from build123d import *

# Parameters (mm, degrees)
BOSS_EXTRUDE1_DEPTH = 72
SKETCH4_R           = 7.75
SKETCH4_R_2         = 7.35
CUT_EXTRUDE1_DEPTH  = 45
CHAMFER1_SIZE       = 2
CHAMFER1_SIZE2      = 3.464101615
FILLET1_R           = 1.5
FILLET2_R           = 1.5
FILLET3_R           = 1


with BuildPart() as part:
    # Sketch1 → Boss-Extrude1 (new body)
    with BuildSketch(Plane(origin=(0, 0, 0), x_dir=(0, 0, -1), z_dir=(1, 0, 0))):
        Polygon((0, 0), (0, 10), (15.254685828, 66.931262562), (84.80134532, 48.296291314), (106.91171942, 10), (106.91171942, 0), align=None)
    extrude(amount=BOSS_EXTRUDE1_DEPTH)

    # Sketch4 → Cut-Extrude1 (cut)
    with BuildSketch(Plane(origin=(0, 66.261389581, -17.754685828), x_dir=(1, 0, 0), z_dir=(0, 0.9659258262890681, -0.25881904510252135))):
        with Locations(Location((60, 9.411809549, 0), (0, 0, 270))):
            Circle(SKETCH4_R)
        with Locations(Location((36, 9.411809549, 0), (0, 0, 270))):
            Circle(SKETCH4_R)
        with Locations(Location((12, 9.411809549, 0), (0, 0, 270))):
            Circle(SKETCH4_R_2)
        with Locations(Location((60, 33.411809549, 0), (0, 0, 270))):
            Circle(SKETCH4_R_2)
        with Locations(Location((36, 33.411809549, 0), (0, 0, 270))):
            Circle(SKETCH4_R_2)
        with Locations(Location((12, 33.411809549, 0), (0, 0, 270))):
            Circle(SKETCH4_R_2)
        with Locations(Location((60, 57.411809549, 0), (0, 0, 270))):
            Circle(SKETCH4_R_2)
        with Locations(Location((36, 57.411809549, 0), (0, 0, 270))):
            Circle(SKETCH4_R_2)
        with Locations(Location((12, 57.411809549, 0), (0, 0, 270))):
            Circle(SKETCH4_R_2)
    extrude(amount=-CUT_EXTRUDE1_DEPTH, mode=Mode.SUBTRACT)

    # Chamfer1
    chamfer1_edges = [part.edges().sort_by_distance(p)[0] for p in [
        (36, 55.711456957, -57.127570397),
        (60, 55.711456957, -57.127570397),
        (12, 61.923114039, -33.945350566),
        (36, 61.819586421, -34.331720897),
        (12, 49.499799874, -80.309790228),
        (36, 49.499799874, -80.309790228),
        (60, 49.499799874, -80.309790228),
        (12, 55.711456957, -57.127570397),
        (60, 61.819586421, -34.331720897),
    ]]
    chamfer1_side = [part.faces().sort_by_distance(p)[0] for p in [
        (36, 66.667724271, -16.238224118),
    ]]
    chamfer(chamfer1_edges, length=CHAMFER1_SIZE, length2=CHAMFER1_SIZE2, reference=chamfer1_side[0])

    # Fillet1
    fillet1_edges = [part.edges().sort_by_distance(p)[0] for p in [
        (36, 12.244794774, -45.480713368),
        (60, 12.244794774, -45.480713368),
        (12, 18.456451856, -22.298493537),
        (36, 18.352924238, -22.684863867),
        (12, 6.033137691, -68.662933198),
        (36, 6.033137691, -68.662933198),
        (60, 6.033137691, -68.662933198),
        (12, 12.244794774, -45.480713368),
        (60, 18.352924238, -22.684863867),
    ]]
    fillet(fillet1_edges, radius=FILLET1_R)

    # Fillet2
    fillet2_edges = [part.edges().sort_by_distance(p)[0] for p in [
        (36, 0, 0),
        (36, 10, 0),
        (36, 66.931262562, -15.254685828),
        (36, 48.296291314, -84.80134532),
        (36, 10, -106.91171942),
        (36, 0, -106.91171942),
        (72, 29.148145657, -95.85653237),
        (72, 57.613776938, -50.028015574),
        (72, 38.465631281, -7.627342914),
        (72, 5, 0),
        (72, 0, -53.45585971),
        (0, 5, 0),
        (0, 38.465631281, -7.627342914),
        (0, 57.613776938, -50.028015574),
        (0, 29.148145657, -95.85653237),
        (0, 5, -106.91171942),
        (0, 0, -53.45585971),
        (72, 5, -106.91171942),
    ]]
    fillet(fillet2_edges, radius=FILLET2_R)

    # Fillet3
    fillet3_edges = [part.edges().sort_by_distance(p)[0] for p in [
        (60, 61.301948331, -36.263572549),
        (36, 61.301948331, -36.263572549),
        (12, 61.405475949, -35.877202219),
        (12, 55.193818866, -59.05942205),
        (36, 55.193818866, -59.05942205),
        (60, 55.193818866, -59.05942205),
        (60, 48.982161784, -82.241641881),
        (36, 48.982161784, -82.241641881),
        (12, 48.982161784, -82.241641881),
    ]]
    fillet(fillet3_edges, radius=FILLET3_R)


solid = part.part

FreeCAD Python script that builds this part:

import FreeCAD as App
import Part
import Sketcher
from FreeCAD import Vector
Q = App.Units.Quantity


def edges_at(feature, points):
    """Names of the edges that pass closest to the given points."""
    edges = feature.Shape.Edges
    near = lambda p: min(range(len(edges)), key=lambda i: edges[i].distToShape(Part.Vertex(*p))[0])
    return sorted({f"Edge{near(p) + 1}" for p in points})


def add_polygon(sketch, points):
    """Adds a closed chain of lines whose ends are joined by coincident constraints."""
    first, n = sketch.GeometryCount, len(points)
    for a, b in zip(points, points[1:] + points[:1]):
        sketch.addGeometry(Part.LineSegment(App.Vector(*a, 0), App.Vector(*b, 0)), False)
    for i in range(n):
        sketch.addConstraint(Sketcher.Constraint("Coincident", first + i, 2, first + (i + 1) % n, 1))

doc = App.newDocument("Part")
body = doc.addObject("PartDesign::Body", "Body")

# Sketch on YZ plane
sketch1 = body.newObject("Sketcher::SketchObject", "Sketch")
sketch1.AttachmentSupport = (doc.getObject("YZ_Plane"), [""])
sketch1.MapMode = "FlatFace"
add_polygon(sketch1, [(10, 0), (0, 0), (0, -107), (10, -107), (48, -85), (67, -15)])  # lines 0-5
sketch1.addConstraint(Sketcher.Constraint("Horizontal", 0))
sketch1.addConstraint(Sketcher.Constraint("Vertical", 1))
sketch1.addConstraint(Sketcher.Constraint("Horizontal", 2))
sketch1.addConstraint(Sketcher.Constraint("Coincident", 0, 2, -1, 1))
sketch1.addConstraint(Sketcher.Constraint("Perpendicular", 4, 5))
sketch1.addConstraint(Sketcher.Constraint("Vertical", 2, 2, 5, 2))
sketch1.addConstraint(Sketcher.Constraint("DistanceX", 0, 2, 0, 1, Q("10 mm")))
sketch1.addConstraint(Sketcher.Constraint("Angle", 3, Q("30 deg")))
sketch1.addConstraint(Sketcher.Constraint("Angle", 4, Q("75 deg")))
sketch1.addConstraint(Sketcher.Constraint("Distance", 4, Q("72 mm")))
sketch1.addConstraint(Sketcher.Constraint("DistanceY", 1, 2, 1, 1, Q("106.911719 mm")))
pad1 = body.newObject("PartDesign::Pad", "Pad")
pad1.Profile = sketch1
pad1.Length = 72

# Sketch on an angled plane
sketch2 = body.newObject("Sketcher::SketchObject", "Sketch001")
sketch2.Placement = App.Placement(Vector(0, 66.26139, -17.754686), App.Rotation(Vector(1, 0, 0), Vector(0, -0.258819045, -0.965925826), Vector(0, 0.965925826, -0.258819045), "ZXY"))
sketch2.addGeometry(Part.Circle(Vector(60, 9, 0), Vector(0, 0, 1), 8), False)
sketch2.addGeometry(Part.Circle(Vector(36, 9, 0), Vector(0, 0, 1), 8), False)
sketch2.addGeometry(Part.Circle(Vector(12, 9, 0), Vector(0, 0, 1), 7), False)
sketch2.addGeometry(Part.Circle(Vector(60, 33, 0), Vector(0, 0, 1), 7), False)
sketch2.addGeometry(Part.Circle(Vector(36, 33, 0), Vector(0, 0, 1), 7), False)
sketch2.addGeometry(Part.Circle(Vector(12, 33, 0), Vector(0, 0, 1), 7), False)
sketch2.addGeometry(Part.Circle(Vector(60, 57, 0), Vector(0, 0, 1), 7), False)
sketch2.addGeometry(Part.Circle(Vector(36, 57, 0), Vector(0, 0, 1), 7), False)
sketch2.addGeometry(Part.Circle(Vector(12, 57, 0), Vector(0, 0, 1), 7), False)
sketch2.addConstraint(Sketcher.Constraint("Equal", 0, 1))
sketch2.addConstraint(Sketcher.Constraint("Equal", 2, 3))
sketch2.addConstraint(Sketcher.Constraint("Equal", 3, 4))
sketch2.addConstraint(Sketcher.Constraint("Equal", 4, 5))
sketch2.addConstraint(Sketcher.Constraint("Equal", 5, 6))
sketch2.addConstraint(Sketcher.Constraint("Equal", 6, 7))
sketch2.addConstraint(Sketcher.Constraint("Equal", 7, 8))
sketch2.addConstraint(Sketcher.Constraint("Horizontal", 0, 3, 1, 3))
sketch2.addConstraint(Sketcher.Constraint("Horizontal", 1, 3, 2, 3))
sketch2.addConstraint(Sketcher.Constraint("Horizontal", 3, 3, 4, 3))
sketch2.addConstraint(Sketcher.Constraint("Horizontal", 4, 3, 5, 3))
sketch2.addConstraint(Sketcher.Constraint("Horizontal", 6, 3, 7, 3))
sketch2.addConstraint(Sketcher.Constraint("Horizontal", 7, 3, 8, 3))
sketch2.addConstraint(Sketcher.Constraint("Vertical", 0, 3, 3, 3))
sketch2.addConstraint(Sketcher.Constraint("Vertical", 1, 3, 4, 3))
sketch2.addConstraint(Sketcher.Constraint("Vertical", 2, 3, 5, 3))
sketch2.addConstraint(Sketcher.Constraint("Vertical", 3, 3, 6, 3))
sketch2.addConstraint(Sketcher.Constraint("Vertical", 4, 3, 7, 3))
sketch2.addConstraint(Sketcher.Constraint("Vertical", 5, 3, 8, 3))
sketch2.addConstraint(Sketcher.Constraint("Diameter", 0, Q("15.5 mm")))
sketch2.addConstraint(Sketcher.Constraint("Diameter", 2, Q("14.7 mm")))
sketch2.addConstraint(Sketcher.Constraint("DistanceX", -1, 1, 0, 3, Q("60 mm")))
sketch2.addConstraint(Sketcher.Constraint("DistanceX", -1, 1, 1, 3, Q("36 mm")))
sketch2.addConstraint(Sketcher.Constraint("DistanceX", -1, 1, 2, 3, Q("12 mm")))
sketch2.addConstraint(Sketcher.Constraint("DistanceY", 0, 3, 3, 3, Q("24 mm")))
sketch2.addConstraint(Sketcher.Constraint("DistanceY", 3, 3, 6, 3, Q("24 mm")))
sketch2.addConstraint(Sketcher.Constraint("DistanceY", -1, 1, 0, 3, Q("9.41181 mm")))
pocket1 = body.newObject("PartDesign::Pocket", "Pocket")
pocket1.Profile = sketch2
pocket1.Length = 45
doc.recompute()

chamfer = body.newObject("PartDesign::Chamfer", "Chamfer")
chamfer.Base = (pocket1, edges_at(pocket1, [
    (36, 55.711, -57.128),
    (60, 55.711, -57.128),
    (12, 61.923, -33.945),
    (36, 61.82, -34.332),
    (12, 49.5, -80.31),
    (36, 49.5, -80.31),
    (60, 49.5, -80.31),
    (12, 55.711, -57.128),
    (60, 61.82, -34.332),
]))
chamfer.ChamferType = "Two distances"
chamfer.Size = 2
chamfer.Size2 = 3.464102
doc.recompute()

fillet = body.newObject("PartDesign::Fillet", "Fillet")
fillet.Base = (chamfer, edges_at(chamfer, [
    (36, 12.245, -45.481),
    (60, 12.245, -45.481),
    (12, 18.456, -22.298),
    (36, 18.353, -22.685),
    (12, 6.033, -68.663),
    (36, 6.033, -68.663),
    (60, 6.033, -68.663),
    (12, 12.245, -45.481),
    (60, 18.353, -22.685),
]))
fillet.Radius = 1.5
doc.recompute()

fillet2 = body.newObject("PartDesign::Fillet", "Fillet001")
fillet2.Base = (fillet, edges_at(fillet, [
    (36, 0, 0),
    (36, 10, 0),
    (36, 66.931, -15.255),
    (36, 48.296, -84.801),
    (36, 10, -106.912),
    (36, 0, -106.912),
    (72, 29.148, -95.857),
    (72, 57.614, -50.028),
    (72, 38.466, -7.627),
    (72, 5, 0),
    (72, 0, -53.456),
    (0, 5, 0),
    (0, 38.466, -7.627),
    (0, 57.614, -50.028),
    (0, 29.148, -95.857),
    (0, 5, -106.912),
    (0, 0, -53.456),
    (72, 5, -106.912),
]))
fillet2.Radius = 1.5
doc.recompute()

fillet3 = body.newObject("PartDesign::Fillet", "Fillet002")
fillet3.Base = (fillet2, edges_at(fillet2, [
    (60, 61.302, -36.264),
    (36, 61.302, -36.264),
    (12, 61.405, -35.877),
    (12, 55.194, -59.059),
    (36, 55.194, -59.059),
    (60, 55.194, -59.059),
    (60, 48.982, -82.242),
    (36, 48.982, -82.242),
    (12, 48.982, -82.242),
]))
fillet3.Radius = 1

doc.recompute()
